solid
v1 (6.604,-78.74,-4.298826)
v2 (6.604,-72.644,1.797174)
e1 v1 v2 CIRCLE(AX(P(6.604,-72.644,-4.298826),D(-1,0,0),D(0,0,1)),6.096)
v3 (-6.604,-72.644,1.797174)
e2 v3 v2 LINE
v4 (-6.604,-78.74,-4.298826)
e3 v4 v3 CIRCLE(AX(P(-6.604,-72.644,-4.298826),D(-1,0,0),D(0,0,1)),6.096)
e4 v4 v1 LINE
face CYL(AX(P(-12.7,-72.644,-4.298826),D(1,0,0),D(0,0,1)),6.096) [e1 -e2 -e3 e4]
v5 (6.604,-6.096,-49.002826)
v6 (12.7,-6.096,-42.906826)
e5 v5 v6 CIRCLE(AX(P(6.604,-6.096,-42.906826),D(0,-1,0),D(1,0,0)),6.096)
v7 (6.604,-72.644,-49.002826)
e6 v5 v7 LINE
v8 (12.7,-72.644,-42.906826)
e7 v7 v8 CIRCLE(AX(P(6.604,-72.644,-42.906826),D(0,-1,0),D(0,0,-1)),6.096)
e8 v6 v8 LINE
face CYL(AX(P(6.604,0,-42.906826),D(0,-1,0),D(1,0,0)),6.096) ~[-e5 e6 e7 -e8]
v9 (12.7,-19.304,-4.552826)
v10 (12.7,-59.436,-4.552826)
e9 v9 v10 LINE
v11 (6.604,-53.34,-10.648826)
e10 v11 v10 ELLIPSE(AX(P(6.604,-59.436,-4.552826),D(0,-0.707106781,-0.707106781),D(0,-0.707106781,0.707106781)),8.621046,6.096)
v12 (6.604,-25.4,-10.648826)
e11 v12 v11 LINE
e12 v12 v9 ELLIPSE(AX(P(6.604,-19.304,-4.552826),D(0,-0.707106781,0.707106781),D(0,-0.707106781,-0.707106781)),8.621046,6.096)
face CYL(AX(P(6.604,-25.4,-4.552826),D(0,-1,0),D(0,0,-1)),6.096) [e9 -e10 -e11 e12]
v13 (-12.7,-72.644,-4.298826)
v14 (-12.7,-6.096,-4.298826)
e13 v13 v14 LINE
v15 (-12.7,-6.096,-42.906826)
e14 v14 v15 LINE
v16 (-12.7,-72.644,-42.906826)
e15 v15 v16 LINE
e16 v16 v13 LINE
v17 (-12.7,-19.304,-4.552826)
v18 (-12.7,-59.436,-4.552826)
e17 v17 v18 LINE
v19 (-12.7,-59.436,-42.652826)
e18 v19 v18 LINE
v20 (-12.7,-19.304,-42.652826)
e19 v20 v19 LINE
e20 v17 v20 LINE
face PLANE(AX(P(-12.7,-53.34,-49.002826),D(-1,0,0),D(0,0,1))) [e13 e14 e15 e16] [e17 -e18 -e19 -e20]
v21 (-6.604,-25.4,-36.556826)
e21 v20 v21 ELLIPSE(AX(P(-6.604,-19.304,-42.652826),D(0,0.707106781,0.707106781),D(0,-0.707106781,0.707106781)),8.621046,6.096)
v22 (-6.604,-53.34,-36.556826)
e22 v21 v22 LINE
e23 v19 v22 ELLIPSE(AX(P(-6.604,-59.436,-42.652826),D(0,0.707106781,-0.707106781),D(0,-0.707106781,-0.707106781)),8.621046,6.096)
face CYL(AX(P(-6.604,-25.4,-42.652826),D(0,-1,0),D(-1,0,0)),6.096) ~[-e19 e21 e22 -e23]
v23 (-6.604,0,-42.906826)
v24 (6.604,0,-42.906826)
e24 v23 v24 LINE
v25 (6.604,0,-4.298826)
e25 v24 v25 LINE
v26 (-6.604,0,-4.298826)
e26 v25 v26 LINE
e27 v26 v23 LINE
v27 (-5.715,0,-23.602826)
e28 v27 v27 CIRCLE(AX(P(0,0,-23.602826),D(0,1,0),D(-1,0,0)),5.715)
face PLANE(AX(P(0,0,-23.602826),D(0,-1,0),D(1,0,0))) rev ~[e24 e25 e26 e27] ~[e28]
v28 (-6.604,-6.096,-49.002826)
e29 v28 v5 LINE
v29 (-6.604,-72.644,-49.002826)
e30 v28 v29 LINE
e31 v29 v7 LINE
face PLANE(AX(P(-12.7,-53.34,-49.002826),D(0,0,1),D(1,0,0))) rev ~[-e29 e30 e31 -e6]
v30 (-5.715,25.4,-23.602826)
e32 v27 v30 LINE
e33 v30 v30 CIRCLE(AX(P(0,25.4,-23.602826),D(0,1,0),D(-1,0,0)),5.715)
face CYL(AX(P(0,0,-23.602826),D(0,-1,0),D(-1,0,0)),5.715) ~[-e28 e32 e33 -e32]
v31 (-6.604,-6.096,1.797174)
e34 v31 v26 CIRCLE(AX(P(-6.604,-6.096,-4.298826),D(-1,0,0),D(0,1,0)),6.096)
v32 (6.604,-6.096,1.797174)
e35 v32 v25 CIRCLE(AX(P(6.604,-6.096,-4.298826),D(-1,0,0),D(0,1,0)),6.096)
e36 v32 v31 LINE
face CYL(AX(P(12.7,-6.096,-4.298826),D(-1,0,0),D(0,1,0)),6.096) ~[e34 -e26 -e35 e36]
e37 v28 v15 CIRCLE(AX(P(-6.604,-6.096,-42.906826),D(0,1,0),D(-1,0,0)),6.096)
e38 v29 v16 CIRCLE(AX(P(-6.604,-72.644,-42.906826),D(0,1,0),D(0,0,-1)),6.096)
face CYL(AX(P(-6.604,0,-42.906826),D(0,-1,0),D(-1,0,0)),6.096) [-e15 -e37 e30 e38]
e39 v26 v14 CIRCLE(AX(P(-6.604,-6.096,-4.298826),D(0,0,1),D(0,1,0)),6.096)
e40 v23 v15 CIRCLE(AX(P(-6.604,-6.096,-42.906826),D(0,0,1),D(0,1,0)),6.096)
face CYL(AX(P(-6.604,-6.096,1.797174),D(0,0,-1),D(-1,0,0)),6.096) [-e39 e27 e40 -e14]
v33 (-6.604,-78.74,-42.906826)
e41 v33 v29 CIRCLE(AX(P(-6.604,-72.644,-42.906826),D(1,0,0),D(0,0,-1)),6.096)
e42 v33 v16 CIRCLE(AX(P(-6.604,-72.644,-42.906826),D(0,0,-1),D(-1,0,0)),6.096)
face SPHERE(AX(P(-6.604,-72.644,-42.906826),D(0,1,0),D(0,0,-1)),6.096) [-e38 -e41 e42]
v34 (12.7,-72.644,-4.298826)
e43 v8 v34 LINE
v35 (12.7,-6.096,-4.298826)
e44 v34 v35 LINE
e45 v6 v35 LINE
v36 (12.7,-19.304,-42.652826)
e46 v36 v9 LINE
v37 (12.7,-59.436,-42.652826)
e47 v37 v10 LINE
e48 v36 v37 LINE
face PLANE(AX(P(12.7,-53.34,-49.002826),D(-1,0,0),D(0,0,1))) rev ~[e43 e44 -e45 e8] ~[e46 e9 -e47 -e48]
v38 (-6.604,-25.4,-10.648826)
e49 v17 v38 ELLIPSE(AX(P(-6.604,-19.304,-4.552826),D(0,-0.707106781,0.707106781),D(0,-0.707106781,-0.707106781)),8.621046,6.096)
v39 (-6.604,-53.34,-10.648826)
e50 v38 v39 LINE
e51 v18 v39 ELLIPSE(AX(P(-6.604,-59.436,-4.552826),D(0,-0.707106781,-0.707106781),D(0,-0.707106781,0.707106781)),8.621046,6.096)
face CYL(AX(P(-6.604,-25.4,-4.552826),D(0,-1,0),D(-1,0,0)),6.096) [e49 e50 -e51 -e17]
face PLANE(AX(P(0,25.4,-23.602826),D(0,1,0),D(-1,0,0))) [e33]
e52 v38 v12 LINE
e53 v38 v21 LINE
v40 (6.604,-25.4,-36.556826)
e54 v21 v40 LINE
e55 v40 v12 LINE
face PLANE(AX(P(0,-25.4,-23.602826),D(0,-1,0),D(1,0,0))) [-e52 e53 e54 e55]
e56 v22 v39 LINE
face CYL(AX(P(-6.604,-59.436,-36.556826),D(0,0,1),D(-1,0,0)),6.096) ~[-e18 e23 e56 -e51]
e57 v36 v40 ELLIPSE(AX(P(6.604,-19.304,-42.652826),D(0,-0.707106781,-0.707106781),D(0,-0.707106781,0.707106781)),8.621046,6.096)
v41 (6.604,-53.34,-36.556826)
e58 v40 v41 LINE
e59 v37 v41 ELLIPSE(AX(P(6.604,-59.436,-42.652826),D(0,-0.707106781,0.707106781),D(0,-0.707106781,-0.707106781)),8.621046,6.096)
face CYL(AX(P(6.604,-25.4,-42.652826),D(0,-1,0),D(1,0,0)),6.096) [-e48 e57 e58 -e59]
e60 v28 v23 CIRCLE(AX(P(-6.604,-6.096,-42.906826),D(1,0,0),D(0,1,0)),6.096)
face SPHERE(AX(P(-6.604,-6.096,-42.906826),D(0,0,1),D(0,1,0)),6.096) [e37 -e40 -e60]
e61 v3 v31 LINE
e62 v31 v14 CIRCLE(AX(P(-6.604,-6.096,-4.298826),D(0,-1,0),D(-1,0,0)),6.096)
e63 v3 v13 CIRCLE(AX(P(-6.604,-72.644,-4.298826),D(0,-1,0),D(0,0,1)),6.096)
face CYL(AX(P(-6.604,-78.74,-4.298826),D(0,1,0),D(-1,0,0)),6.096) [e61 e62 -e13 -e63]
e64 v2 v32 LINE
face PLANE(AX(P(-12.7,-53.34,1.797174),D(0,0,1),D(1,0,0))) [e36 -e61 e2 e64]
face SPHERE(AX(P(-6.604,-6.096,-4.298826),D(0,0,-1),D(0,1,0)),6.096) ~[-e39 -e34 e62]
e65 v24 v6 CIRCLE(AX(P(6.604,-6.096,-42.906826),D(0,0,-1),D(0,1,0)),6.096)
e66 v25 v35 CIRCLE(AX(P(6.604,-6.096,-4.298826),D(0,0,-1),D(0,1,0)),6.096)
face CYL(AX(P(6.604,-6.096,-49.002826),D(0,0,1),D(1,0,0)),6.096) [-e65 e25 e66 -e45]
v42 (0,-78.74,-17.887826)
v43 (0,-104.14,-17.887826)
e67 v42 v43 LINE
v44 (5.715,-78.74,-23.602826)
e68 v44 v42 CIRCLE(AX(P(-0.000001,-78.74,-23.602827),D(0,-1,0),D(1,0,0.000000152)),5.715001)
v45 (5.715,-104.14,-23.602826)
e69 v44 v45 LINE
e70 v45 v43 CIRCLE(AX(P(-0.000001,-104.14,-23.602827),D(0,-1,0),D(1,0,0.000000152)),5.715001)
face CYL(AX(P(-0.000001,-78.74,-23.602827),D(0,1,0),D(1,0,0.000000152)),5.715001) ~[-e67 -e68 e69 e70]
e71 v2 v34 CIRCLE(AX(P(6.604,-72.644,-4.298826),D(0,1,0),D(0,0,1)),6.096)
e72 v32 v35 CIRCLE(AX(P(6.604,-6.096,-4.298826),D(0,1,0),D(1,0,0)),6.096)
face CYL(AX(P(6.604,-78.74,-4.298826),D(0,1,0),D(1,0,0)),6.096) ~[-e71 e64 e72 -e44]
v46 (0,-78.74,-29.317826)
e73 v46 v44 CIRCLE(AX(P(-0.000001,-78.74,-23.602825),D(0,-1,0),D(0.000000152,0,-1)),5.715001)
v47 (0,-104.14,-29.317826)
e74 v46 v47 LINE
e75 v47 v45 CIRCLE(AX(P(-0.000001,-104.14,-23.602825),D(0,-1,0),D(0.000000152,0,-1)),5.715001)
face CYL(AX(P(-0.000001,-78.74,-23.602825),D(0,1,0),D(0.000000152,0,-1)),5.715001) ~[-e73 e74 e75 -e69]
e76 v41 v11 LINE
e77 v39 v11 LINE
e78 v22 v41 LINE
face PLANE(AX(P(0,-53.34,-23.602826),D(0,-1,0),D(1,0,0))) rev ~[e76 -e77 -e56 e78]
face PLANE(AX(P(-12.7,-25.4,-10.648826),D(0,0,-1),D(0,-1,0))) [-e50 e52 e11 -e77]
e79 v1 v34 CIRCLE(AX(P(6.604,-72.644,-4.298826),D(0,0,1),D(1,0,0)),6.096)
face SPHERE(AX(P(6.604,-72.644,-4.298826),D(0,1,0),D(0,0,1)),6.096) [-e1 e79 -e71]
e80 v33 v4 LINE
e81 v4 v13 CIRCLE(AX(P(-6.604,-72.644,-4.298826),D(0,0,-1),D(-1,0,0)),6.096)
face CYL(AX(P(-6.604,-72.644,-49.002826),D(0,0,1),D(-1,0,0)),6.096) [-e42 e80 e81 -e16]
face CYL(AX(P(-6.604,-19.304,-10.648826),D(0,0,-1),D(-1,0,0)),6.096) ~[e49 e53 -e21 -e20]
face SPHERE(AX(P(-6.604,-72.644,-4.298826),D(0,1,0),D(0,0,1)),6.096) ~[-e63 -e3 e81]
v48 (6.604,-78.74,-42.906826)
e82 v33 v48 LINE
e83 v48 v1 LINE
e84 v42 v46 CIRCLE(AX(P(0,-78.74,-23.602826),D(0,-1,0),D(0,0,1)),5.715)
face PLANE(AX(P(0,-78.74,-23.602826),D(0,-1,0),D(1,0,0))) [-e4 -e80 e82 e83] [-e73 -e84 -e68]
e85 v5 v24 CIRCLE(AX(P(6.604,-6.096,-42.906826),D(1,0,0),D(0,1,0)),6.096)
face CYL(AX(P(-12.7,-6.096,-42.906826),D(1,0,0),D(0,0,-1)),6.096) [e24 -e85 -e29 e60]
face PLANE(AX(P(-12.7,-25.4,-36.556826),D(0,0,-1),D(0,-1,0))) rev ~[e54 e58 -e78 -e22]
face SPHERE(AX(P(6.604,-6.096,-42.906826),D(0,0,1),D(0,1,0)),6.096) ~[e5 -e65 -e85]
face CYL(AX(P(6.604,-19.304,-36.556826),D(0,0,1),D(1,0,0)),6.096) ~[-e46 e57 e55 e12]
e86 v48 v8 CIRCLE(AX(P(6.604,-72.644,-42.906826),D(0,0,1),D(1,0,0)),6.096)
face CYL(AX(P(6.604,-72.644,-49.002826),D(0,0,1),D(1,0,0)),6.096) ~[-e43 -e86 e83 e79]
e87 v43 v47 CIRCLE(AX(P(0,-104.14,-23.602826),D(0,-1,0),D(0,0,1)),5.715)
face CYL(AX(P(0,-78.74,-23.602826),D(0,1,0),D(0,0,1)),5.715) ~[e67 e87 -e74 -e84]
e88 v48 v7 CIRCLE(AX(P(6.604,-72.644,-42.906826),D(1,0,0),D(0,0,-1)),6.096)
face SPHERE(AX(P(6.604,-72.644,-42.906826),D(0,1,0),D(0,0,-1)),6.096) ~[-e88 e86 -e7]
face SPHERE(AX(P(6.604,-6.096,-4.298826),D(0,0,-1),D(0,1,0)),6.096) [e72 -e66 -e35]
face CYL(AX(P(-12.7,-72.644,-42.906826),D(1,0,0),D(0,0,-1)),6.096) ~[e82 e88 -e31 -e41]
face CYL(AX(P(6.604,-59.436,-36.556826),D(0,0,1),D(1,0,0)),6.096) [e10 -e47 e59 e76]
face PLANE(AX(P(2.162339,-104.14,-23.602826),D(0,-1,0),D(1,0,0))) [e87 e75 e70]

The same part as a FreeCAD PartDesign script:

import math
import FreeCAD as App
import Part
import Sketcher
from FreeCAD import Vector
Q = App.Units.Quantity


def edges_at(feature, points):
    """Names of the edges that pass closest to the given points."""
    edges = feature.Shape.Edges
    near = lambda p: min(range(len(edges)), key=lambda i: edges[i].distToShape(Part.Vertex(*p))[0])
    return sorted({f"Edge{near(p) + 1}" for p in points})

doc = App.newDocument("Part")
body = doc.addObject("PartDesign::Body", "Body")

# Sketch on XZ plane
sketch1 = body.newObject("Sketcher::SketchObject", "Sketch")
sketch1.AttachmentSupport = (doc.getObject("XZ_Plane"), [""])
sketch1.MapMode = "FlatFace"
sketch1.addGeometry(Part.LineSegment(Vector(-13, -49, 0), Vector(13, -49, 0)), False)
sketch1.addGeometry(Part.LineSegment(Vector(13, -49, 0), Vector(13, 2, 0)), False)
sketch1.addGeometry(Part.LineSegment(Vector(13, 2, 0), Vector(-13, 2, 0)), False)
sketch1.addGeometry(Part.LineSegment(Vector(-13, 2, 0), Vector(-13, -49, 0)), False)
sketch1.addConstraint(Sketcher.Constraint("Coincident", 0, 2, 1, 1))
sketch1.addConstraint(Sketcher.Constraint("Coincident", 1, 2, 2, 1))
sketch1.addConstraint(Sketcher.Constraint("Coincident", 2, 2, 3, 1))
sketch1.addConstraint(Sketcher.Constraint("Coincident", 3, 2, 0, 1))
sketch1.addConstraint(Sketcher.Constraint("Horizontal", 0))
sketch1.addConstraint(Sketcher.Constraint("Vertical", 1))
sketch1.addConstraint(Sketcher.Constraint("Horizontal", 2))
sketch1.addConstraint(Sketcher.Constraint("Vertical", 3))
sketch1.addConstraint(Sketcher.Constraint("DistanceX", 0, 1, 0, 2, Q("1 in")))
sketch1.addConstraint(Sketcher.Constraint("DistanceY", 1, 1, 1, 2, Q("2 in")))
sketch1.addConstraint(Sketcher.Constraint("DistanceX", -1, 1, 0, 2, Q("0.5 in")))
sketch1.addConstraint(Sketcher.Constraint("DistanceY", 0, 2, -1, 1, Q("49.002826 mm")))
pad1 = body.newObject("PartDesign::Pad", "Pad")
pad1.Profile = sketch1
pad1.Length = Q("1 in")

# Sketch on YZ plane
sketch2 = body.newObject("Sketcher::SketchObject", "Sketch001")
sketch2.AttachmentSupport = (doc.getObject("YZ_Plane"), [""])
sketch2.MapMode = "FlatFace"
sketch2.AttachmentOffset = App.Placement(Vector(0, 0, -0.5 * 25.4), App.Rotation())
sketch2.addGeometry(Part.LineSegment(Vector(-25, 2, 0), Vector(-25, -11, 0)), False)
sketch2.addGeometry(Part.LineSegment(Vector(-25, -11, 0), Vector(-53, -11, 0)), False)
sketch2.addGeometry(Part.LineSegment(Vector(-53, -11, 0), Vector(-53, 2, 0)), False)
sketch2.addGeometry(Part.LineSegment(Vector(-53, 2, 0), Vector(-25, 2, 0)), False)
sketch2.addGeometry(Part.LineSegment(Vector(-25, -37, 0), Vector(-25, -49, 0)), False)
sketch2.addGeometry(Part.LineSegment(Vector(-25, -49, 0), Vector(-53, -49, 0)), False)
sketch2.addGeometry(Part.LineSegment(Vector(-53, -49, 0), Vector(-53, -37, 0)), False)
sketch2.addGeometry(Part.LineSegment(Vector(-53, -37, 0), Vector(-25, -37, 0)), False)
sketch2.addConstraint(Sketcher.Constraint("Coincident", 0, 2, 1, 1))
sketch2.addConstraint(Sketcher.Constraint("Coincident", 1, 2, 2, 1))
sketch2.addConstraint(Sketcher.Constraint("Coincident", 2, 2, 3, 1))
sketch2.addConstraint(Sketcher.Constraint("Coincident", 3, 2, 0, 1))
sketch2.addConstraint(Sketcher.Constraint("Coincident", 4, 2, 5, 1))
sketch2.addConstraint(Sketcher.Constraint("Coincident", 5, 2, 6, 1))
sketch2.addConstraint(Sketcher.Constraint("Coincident", 6, 2, 7, 1))
sketch2.addConstraint(Sketcher.Constraint("Coincident", 7, 2, 4, 1))
sketch2.addConstraint(Sketcher.Constraint("Vertical", 0))
sketch2.addConstraint(Sketcher.Constraint("Horizontal", 1))
sketch2.addConstraint(Sketcher.Constraint("Vertical", 2))
sketch2.addConstraint(Sketcher.Constraint("Horizontal", 3))
sketch2.addConstraint(Sketcher.Constraint("Vertical", 4))
sketch2.addConstraint(Sketcher.Constraint("Horizontal", 5))
sketch2.addConstraint(Sketcher.Constraint("Vertical", 6))
sketch2.addConstraint(Sketcher.Constraint("Horizontal", 7))
sketch2.addConstraint(Sketcher.Constraint("Vertical", 3, 2, 4, 2))
sketch2.addConstraint(Sketcher.Constraint("Vertical", 2, 2, 5, 2))
sketch2.addConstraint(Sketcher.Constraint("Equal", 2, 4))
sketch2.addConstraint(Sketcher.Constraint("DistanceX", 1, 2, 1, 1, Q("1.1 in")))
sketch2.addConstraint(Sketcher.Constraint("DistanceX", 0, 2, -1, 1, Q("1 in")))
sketch2.addConstraint(Sketcher.Constraint("DistanceY", 4, 2, 3, 2, Q("2 in")))
sketch2.addConstraint(Sketcher.Constraint("DistanceY", 0, 2, 0, 1, Q("0.49 in")))
sketch2.addConstraint(Sketcher.Constraint("DistanceY", 0, 2, -1, 1, Q("10.648826 mm")))
pad2 = body.newObject("PartDesign::Pad", "Pad001")
pad2.Profile = sketch2
pad2.Length = Q("1 in")

# Sketch on XZ plane
sketch3 = body.newObject("Sketcher::SketchObject", "Sketch002")
sketch3.AttachmentSupport = (doc.getObject("XZ_Plane"), [""])
sketch3.MapMode = "FlatFace"
sketch3.addGeometry(Part.Circle(Vector(0, -24, 0), Vector(0, 0, 1), 6), False)
sketch3.addConstraint(Sketcher.Constraint("PointOnObject", 0, 3, -2))
sketch3.addConstraint(Sketcher.Constraint("Diameter", 0, Q("0.45 in")))
sketch3.addConstraint(Sketcher.Constraint("DistanceY", 0, 3, -1, 1, Q("23.602826 mm")))
pad3 = body.newObject("PartDesign::Pad", "Pad002")
pad3.Profile = sketch3
pad3.Length = Q("1 in")
pad3.Reversed = True

# Sketch on XZ plane
sketch4 = body.newObject("Sketcher::SketchObject", "Sketch003")
sketch4.AttachmentSupport = (doc.getObject("XZ_Plane"), [""])
sketch4.MapMode = "FlatFace"
sketch4.AttachmentOffset = App.Placement(Vector(0, 0, 2.1 * 25.4), App.Rotation())
sketch4.addGeometry(Part.LineSegment(Vector(-13, 2, 0), Vector(-13, -49, 0)), False)
sketch4.addGeometry(Part.LineSegment(Vector(-13, -49, 0), Vector(13, -49, 0)), False)
sketch4.addGeometry(Part.LineSegment(Vector(13, -49, 0), Vector(13, 2, 0)), False)
sketch4.addGeometry(Part.LineSegment(Vector(13, 2, 0), Vector(-13, 2, 0)), False)
sketch4.addConstraint(Sketcher.Constraint("Coincident", 0, 2, 1, 1))
sketch4.addConstraint(Sketcher.Constraint("Coincident", 1, 2, 2, 1))
sketch4.addConstraint(Sketcher.Constraint("Coincident", 2, 2, 3, 1))
sketch4.addConstraint(Sketcher.Constraint("Coincident", 3, 2, 0, 1))
sketch4.addConstraint(Sketcher.Constraint("Vertical", 0))
sketch4.addConstraint(Sketcher.Constraint("Horizontal", 1))
sketch4.addConstraint(Sketcher.Constraint("Vertical", 2))
sketch4.addConstraint(Sketcher.Constraint("Horizontal", 3))
sketch4.addConstraint(Sketcher.Constraint("DistanceX", 1, 1, 1, 2, Q("1 in")))
sketch4.addConstraint(Sketcher.Constraint("DistanceY", 0, 2, 0, 1, Q("2 in")))
sketch4.addConstraint(Sketcher.Constraint("DistanceX", 0, 2, -1, 1, Q("0.5 in")))
sketch4.addConstraint(Sketcher.Constraint("DistanceY", 0, 2, -1, 1, Q("49.002826 mm")))
pad4 = body.newObject("PartDesign::Pad", "Pad003")
pad4.Profile = sketch4
pad4.Length = Q("1 in")
doc.recompute()

fillet = body.newObject("PartDesign::Fillet", "Fillet")
fillet.Base = (pad4, edges_at(pad4, [
    (-12.7, 0, -23.603),
    (12.7, 0, -23.603),
    (0, 0, 1.797),
    (0, 0, -49.003),
    (-12.7, -39.37, -36.557),
    (-12.7, -39.37, -10.649),
    (12.7, -39.37, -36.557),
    (12.7, -39.37, -10.649),
    (-12.7, -39.37, 1.797),
    (12.7, -39.37, 1.797),
    (12.7, -39.37, -49.003),
    (-12.7, -39.37, -49.003),
    (-12.7, -25.4, -23.603),
    (12.7, -25.4, -23.603),
    (0, -78.74, 1.797),
    (0, -78.74, -49.003),
    (-12.7, -78.74, -23.603),
    (12.7, -78.74, -23.603),
    (-12.7, -53.34, -23.603),
    (12.7, -53.34, -23.603),
]))
fillet.Radius = Q("0.24 in")

# Sketch on XZ plane
sketch5 = body.newObject("Sketcher::SketchObject", "Sketch004")
sketch5.AttachmentSupport = (doc.getObject("XZ_Plane"), [""])
sketch5.MapMode = "FlatFace"
sketch5.AttachmentOffset = App.Placement(Vector(0, 0, 3.1 * 25.4), App.Rotation())
sketch5.addGeometry(Part.ArcOfCircle(Part.Circle(Vector(0, -24, 0), Vector(0, 0, 1), 6), math.radians(0), math.radians(90)), False)
sketch5.addGeometry(Part.ArcOfCircle(Part.Circle(Vector(0, -24, 0), Vector(0, 0, 1), 6), math.radians(90), math.radians(270)), False)
sketch5.addGeometry(Part.ArcOfCircle(Part.Circle(Vector(0, -24, 0), Vector(0, 0, 1), 6), math.radians(-90), math.radians(0)), False)
sketch5.addConstraint(Sketcher.Constraint("Tangent", 0, 2, 1, 1))
sketch5.addConstraint(Sketcher.Constraint("Tangent", 1, 2, 2, 1))
sketch5.addConstraint(Sketcher.Constraint("Tangent", 2, 2, 0, 1))
sketch5.addConstraint(Sketcher.Constraint("PointOnObject", 0, 3, -2))
sketch5.addConstraint(Sketcher.Constraint("PointOnObject", 0, 2, -2))
sketch5.addConstraint(Sketcher.Constraint("PointOnObject", 1, 2, -2))
sketch5.addConstraint(Sketcher.Constraint("Horizontal", 1, 3, 2, 2))
sketch5.addConstraint(Sketcher.Constraint("Radius", 0, Q("0.225 in")))
sketch5.addConstraint(Sketcher.Constraint("DistanceY", 0, 3, -1, 1, Q("23.602827 mm")))
pad5 = body.newObject("PartDesign::Pad", "Pad004")
pad5.Profile = sketch5
pad5.Length = Q("1 in")

doc.recompute()
